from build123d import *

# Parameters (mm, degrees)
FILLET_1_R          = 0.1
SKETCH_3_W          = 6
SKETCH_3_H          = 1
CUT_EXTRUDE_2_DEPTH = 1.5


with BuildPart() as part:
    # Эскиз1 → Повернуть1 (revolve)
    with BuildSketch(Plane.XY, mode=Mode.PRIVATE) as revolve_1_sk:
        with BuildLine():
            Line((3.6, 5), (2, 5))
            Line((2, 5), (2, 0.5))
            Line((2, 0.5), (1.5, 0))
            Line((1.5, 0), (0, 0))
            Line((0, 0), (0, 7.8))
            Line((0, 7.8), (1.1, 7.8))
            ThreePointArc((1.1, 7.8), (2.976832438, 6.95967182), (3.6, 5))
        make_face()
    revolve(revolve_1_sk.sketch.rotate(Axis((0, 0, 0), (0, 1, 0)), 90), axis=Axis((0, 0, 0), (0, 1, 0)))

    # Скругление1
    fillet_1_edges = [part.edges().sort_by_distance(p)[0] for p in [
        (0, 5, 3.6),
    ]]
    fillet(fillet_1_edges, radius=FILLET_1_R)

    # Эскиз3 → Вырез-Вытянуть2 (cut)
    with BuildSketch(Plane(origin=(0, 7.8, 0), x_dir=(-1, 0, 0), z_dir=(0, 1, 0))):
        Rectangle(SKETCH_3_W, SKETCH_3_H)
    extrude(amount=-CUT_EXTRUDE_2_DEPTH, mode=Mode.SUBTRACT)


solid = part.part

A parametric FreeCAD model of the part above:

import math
import FreeCAD as App
import Part
import Sketcher

V = App.Vector
Q = App.Units.Quantity


def edges_at(feature, points):
    """Names of the edges that pass closest to the given points."""
    edges = feature.Shape.Edges
    near = lambda p: min(range(len(edges)), key=lambda i: edges[i].distToShape(Part.Vertex(*p))[0])
    return sorted({f"Edge{near(p) + 1}" for p in points})


def add_polygon(sketch, points):
    """Adds a closed chain of lines whose ends are joined by coincident constraints."""
    first, n = sketch.GeometryCount, len(points)
    for a, b in zip(points, points[1:] + points[:1]):
        sketch.addGeometry(Part.LineSegment(App.Vector(*a, 0), App.Vector(*b, 0)), False)
    for i in range(n):
        sketch.addConstraint(Sketcher.Constraint("Coincident", first + i, 2, first + (i + 1) % n, 1))

doc = App.newDocument("Part")
body = doc.addObject("PartDesign::Body", "Body")

sketch1 = body.newObject("Sketcher::SketchObject", "Sketch")
sketch1.AttachmentSupport = (doc.getObject("XY_Plane"), [""])
sketch1.MapMode = "FlatFace"
sketch1.addGeometry([
    Part.LineSegment(V(2, 5, 0), V(3.6, 5, 0)),
    Part.ArcOfCircle(Part.Circle(V(1.1, 5.283929, 0), V(0, 0, 1), 2.516071), math.radians(-6.479401), math.radians(90)),
    Part.LineSegment(V(1.1, 7.8, 0), V(0, 7.8, 0)),
    Part.LineSegment(V(0, 7.8, 0), V(0, 0, 0)),
    Part.LineSegment(V(0, 0, 0), V(1.5, 0, 0)),
    Part.LineSegment(V(1.5, 0, 0), V(2, 0.5, 0)),
    Part.LineSegment(V(2, 0.5, 0), V(2, 5, 0)),
], False)
sketch1.addConstraint([
    Sketcher.Constraint("Coincident", 0, 2, 1, 1),
    Sketcher.Constraint("Tangent", 1, 2, 2, 1),
    Sketcher.Constraint("Coincident", 2, 2, 3, 1),
    Sketcher.Constraint("Coincident", 3, 2, 4, 1),
    Sketcher.Constraint("Coincident", 4, 2, 5, 1),
    Sketcher.Constraint("Coincident", 5, 2, 6, 1),
    Sketcher.Constraint("Coincident", 6, 2, 0, 1),
    Sketcher.Constraint("Horizontal", 0),
    Sketcher.Constraint("Horizontal", 2),
    Sketcher.Constraint("Vertical", 3),
    Sketcher.Constraint("Horizontal", 4),
    Sketcher.Constraint("Vertical", 6),
    Sketcher.Constraint("Coincident", 3, 2, -1, 1),
    Sketcher.Constraint("Angle", 5, Q("45 deg")),
    Sketcher.Constraint("DistanceX", 0, 1, 0, 2, Q("1.6 mm")),
    Sketcher.Constraint("DistanceX", 2, 2, 2, 1, Q("1.1 mm")),
    Sketcher.Constraint("DistanceX", 4, 1, 4, 2, Q("1.5 mm")),
    Sketcher.Constraint("DistanceY", 3, 2, 3, 1, Q("7.8 mm")),
    Sketcher.Constraint("DistanceY", 6, 1, 6, 2, Q("4.5 mm")),
    Sketcher.Constraint("DistanceY", -1, 1, 0, 2, Q("5 mm")),
])
revolution = body.newObject("PartDesign::Revolution", "Revolution")
revolution.Profile = sketch1
revolution.ReferenceAxis = (sketch1, ["V_Axis"])
revolution.Angle = 360
doc.recompute()

fillet = body.newObject("PartDesign::Fillet", "Fillet")
fillet.Base = (revolution, edges_at(revolution, [(0, 5, 3.6)]))
fillet.Radius = 0.1

sketch2 = body.newObject("Sketcher::SketchObject", "Sketch001")
sketch2.AttachmentSupport = (doc.getObject("XZ_Plane"), [""])
sketch2.MapMode = "FlatFace"
sketch2.AttachmentOffset = App.Placement(V(0, 0, -7.8), App.Rotation())
add_polygon(sketch2, [(3, 0.5), (3, -0.5), (-3, -0.5), (-3, 0.5)])
sketch2.addConstraint([
    Sketcher.Constraint("Vertical", 0),
    Sketcher.Constraint("Horizontal", 1),
    Sketcher.Constraint("Vertical", 2),
    Sketcher.Constraint("Horizontal", 3),
    Sketcher.Constraint("Symmetric", 0, 2, 2, 2, -1, 1),
    Sketcher.Constraint("DistanceX", 1, 2, 1, 1, Q("6 mm")),
    Sketcher.Constraint("DistanceY", 0, 2, 0, 1, Q("1 mm")),
])
pocket1 = body.newObject("PartDesign::Pocket", "Pocket")
pocket1.Profile = sketch2
pocket1.Length = 1.5
pocket1.Reversed = True

doc.recompute()
